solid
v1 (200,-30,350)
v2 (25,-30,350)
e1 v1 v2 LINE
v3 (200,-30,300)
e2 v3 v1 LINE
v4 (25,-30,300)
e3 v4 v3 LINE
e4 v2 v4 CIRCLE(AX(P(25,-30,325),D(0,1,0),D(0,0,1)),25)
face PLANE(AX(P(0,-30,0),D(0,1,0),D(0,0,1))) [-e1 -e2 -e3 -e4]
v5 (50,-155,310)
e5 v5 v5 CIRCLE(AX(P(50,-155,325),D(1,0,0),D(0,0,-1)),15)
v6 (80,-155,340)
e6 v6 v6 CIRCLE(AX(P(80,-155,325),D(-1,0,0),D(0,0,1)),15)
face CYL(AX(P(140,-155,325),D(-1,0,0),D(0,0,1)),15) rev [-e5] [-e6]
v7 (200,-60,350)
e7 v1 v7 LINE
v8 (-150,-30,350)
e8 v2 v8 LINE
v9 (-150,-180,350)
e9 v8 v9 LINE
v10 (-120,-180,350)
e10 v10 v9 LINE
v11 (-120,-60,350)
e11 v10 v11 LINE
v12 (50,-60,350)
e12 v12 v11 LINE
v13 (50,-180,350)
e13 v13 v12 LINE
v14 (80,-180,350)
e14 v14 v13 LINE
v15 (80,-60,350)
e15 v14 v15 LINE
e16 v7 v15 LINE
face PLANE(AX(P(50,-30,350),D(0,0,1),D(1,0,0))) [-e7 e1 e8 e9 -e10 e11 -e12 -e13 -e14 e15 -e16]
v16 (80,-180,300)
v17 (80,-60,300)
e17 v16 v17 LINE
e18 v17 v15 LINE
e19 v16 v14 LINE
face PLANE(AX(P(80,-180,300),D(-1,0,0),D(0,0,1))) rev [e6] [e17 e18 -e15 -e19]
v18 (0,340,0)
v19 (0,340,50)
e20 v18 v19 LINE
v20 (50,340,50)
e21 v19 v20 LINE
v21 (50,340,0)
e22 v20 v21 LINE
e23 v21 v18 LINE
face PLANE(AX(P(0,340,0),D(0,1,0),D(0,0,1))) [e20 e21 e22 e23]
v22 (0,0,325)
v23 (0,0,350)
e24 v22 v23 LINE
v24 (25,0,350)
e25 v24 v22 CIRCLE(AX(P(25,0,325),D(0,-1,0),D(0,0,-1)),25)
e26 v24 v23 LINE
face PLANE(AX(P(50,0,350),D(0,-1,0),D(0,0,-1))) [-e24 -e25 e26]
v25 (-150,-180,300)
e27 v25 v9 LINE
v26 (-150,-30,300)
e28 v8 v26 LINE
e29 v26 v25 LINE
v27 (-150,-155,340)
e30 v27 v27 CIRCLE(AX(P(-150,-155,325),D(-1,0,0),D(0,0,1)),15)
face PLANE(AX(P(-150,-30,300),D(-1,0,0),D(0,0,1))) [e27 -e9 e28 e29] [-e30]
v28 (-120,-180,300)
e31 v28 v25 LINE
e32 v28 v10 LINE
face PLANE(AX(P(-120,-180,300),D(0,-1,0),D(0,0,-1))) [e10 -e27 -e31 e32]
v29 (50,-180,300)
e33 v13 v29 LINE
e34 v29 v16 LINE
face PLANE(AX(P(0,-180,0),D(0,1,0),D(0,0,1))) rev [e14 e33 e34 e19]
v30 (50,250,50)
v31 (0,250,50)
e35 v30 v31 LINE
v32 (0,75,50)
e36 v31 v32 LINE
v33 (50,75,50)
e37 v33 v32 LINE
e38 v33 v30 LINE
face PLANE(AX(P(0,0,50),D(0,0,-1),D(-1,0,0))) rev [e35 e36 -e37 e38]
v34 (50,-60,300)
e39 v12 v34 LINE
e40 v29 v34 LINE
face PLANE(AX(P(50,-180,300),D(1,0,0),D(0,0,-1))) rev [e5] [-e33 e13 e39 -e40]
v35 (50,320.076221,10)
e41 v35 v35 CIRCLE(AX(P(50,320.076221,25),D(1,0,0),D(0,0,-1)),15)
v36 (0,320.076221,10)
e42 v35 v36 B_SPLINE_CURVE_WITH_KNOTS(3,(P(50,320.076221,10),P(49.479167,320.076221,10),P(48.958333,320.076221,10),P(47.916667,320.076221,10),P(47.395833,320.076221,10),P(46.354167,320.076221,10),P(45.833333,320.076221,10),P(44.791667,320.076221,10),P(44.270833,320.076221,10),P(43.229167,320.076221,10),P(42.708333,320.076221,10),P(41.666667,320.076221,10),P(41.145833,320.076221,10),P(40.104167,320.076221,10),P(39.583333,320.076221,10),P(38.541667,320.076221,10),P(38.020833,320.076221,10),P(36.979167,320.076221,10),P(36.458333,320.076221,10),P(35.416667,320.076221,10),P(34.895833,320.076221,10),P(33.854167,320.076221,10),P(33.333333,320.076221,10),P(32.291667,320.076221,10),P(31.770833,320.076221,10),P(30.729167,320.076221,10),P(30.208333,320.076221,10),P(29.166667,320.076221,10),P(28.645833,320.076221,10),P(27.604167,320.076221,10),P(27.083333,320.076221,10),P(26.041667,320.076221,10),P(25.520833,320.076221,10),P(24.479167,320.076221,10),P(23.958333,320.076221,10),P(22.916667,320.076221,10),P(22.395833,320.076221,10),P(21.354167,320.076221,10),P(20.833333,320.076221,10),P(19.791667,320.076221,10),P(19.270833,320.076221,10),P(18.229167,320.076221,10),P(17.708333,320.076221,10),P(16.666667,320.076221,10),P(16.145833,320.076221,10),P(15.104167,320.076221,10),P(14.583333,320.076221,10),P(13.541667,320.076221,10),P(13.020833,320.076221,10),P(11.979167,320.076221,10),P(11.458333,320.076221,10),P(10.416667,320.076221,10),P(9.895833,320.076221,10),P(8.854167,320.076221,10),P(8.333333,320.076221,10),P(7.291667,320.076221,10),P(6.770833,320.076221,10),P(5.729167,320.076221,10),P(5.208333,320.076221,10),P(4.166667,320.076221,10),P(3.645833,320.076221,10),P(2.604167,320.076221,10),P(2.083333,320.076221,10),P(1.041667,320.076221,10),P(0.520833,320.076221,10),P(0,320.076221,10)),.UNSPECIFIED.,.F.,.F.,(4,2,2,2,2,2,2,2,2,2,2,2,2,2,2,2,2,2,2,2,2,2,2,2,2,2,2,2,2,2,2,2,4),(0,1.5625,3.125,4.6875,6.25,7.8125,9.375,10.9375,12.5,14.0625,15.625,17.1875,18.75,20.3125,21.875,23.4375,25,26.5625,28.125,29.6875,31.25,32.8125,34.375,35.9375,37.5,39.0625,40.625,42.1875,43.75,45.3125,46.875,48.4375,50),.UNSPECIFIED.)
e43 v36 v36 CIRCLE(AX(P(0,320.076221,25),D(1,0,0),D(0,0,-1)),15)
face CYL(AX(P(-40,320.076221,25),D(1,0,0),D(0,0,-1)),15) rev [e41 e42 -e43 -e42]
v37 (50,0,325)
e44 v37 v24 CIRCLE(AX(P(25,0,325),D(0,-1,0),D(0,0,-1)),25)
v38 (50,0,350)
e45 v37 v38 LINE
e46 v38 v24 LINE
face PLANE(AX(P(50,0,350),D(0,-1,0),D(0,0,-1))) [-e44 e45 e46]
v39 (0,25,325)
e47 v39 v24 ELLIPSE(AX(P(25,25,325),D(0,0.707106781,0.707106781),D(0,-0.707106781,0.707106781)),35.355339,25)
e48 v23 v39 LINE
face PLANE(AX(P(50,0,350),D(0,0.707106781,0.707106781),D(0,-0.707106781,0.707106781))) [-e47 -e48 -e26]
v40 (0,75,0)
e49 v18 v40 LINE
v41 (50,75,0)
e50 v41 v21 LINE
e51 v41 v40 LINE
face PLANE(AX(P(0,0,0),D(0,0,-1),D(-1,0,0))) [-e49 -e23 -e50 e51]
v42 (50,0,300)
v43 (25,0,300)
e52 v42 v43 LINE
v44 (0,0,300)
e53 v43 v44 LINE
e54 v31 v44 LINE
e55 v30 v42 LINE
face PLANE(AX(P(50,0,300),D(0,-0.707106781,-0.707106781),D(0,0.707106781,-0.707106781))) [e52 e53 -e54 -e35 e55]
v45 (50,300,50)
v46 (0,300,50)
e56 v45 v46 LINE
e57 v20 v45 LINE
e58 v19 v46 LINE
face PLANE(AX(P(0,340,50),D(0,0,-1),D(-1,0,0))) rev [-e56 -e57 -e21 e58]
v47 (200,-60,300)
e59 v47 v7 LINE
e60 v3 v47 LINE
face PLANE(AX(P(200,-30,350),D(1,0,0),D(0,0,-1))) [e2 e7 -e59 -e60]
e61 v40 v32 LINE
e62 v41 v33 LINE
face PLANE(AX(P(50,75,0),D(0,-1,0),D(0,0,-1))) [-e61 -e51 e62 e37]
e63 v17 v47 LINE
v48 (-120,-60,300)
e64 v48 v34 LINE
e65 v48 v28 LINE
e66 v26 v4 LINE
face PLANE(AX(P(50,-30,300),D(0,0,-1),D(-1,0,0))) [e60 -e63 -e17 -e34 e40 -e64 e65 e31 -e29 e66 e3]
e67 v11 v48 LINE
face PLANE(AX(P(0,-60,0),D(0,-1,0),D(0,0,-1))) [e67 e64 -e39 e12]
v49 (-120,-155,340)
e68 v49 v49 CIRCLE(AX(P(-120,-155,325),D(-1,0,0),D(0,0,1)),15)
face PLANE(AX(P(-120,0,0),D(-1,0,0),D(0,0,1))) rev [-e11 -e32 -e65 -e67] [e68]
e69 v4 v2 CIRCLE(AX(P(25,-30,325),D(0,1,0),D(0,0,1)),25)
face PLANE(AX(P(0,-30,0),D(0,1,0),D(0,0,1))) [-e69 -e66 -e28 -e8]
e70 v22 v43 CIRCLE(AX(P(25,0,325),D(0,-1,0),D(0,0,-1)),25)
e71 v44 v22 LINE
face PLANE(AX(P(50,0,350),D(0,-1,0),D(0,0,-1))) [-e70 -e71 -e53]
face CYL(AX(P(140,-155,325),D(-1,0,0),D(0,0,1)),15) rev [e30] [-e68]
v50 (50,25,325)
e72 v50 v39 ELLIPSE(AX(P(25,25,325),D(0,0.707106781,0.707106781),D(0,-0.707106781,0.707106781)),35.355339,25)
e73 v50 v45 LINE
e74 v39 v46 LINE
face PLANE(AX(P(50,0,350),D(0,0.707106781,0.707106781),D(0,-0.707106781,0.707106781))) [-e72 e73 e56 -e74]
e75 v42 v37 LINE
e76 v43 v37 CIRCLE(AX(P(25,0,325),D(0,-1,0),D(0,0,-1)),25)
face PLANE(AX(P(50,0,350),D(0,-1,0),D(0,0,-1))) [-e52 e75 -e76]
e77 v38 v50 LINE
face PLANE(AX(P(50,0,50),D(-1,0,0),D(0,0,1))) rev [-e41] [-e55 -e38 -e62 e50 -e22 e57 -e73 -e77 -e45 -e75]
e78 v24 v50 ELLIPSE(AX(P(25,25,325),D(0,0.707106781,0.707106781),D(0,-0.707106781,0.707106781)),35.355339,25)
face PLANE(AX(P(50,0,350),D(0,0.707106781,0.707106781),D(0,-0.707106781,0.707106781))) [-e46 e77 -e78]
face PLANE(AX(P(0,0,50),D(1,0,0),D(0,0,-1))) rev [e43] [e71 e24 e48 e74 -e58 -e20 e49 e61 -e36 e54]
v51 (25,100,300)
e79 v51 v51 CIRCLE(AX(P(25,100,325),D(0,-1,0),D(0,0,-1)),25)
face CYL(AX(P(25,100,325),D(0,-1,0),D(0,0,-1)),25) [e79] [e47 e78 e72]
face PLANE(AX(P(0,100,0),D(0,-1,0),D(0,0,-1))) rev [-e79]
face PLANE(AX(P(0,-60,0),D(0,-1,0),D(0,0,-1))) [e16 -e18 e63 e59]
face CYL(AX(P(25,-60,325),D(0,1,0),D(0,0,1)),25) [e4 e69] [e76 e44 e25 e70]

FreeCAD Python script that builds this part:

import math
import FreeCAD as App
import Part
import Sketcher
Q = App.Units.Quantity

doc = App.newDocument("Part")
body = doc.addObject("PartDesign::Body", "Body")

# Sketch on XY plane
sketch1 = body.newObject("Sketcher::SketchObject", "Sketch")
sketch1.AttachmentSupport = (doc.getObject("XY_Plane"), [""])
sketch1.MapMode = "FlatFace"
sketch1.addGeometry([
    Part.LineSegment(App.Vector(0, 300, 0), App.Vector(0, 0, 0)),
    Part.LineSegment(App.Vector(0, 0, 0), App.Vector(50, 0, 0)),
    Part.LineSegment(App.Vector(50, 0, 0), App.Vector(50, 300, 0)),
    Part.LineSegment(App.Vector(50, 300, 0), App.Vector(0, 300, 0)),
], False)
sketch1.addConstraint([
    Sketcher.Constraint("Coincident", 0, 2, 1, 1),
    Sketcher.Constraint("Coincident", 1, 2, 2, 1),
    Sketcher.Constraint("Coincident", 2, 2, 3, 1),
    Sketcher.Constraint("Coincident", 3, 2, 0, 1),
    Sketcher.Constraint("Vertical", 0),
    Sketcher.Constraint("Horizontal", 1),
    Sketcher.Constraint("Vertical", 2),
    Sketcher.Constraint("Horizontal", 3),
    Sketcher.Constraint("Coincident", 0, 2, -1, 1),
    Sketcher.Constraint("DistanceX", 1, 1, 1, 2, 50.0),
    Sketcher.Constraint("DistanceY", 0, 2, 0, 1, 300.0),
])
pad1 = body.newObject("PartDesign::Pad", "Pad")
pad1.Profile = sketch1
pad1.Length = 50

# Sketch on YZ plane
sketch2 = body.newObject("Sketcher::SketchObject", "Sketch001")
sketch2.AttachmentSupport = (doc.getObject("YZ_Plane"), [""])
sketch2.MapMode = "FlatFace"
sketch2.addGeometry([
    Part.LineSegment(App.Vector(75, 0, 0), App.Vector(0, 0, 0)),
    Part.LineSegment(App.Vector(0, 0, 0), App.Vector(0, 50, 0)),
    Part.LineSegment(App.Vector(0, 50, 0), App.Vector(75, 50, 0)),
    Part.LineSegment(App.Vector(75, 50, 0), App.Vector(75, 0, 0)),
], False)
sketch2.addConstraint([
    Sketcher.Constraint("Coincident", 0, 2, 1, 1),
    Sketcher.Constraint("Coincident", 1, 2, 2, 1),
    Sketcher.Constraint("Coincident", 2, 2, 3, 1),
    Sketcher.Constraint("Coincident", 3, 2, 0, 1),
    Sketcher.Constraint("Horizontal", 0),
    Sketcher.Constraint("Vertical", 1),
    Sketcher.Constraint("Horizontal", 2),
    Sketcher.Constraint("Vertical", 3),
    Sketcher.Constraint("Coincident", 0, 2, -1, 1),
    Sketcher.Constraint("DistanceX", 0, 2, 0, 1, 75.0),
    Sketcher.Constraint("DistanceY", 1, 1, 1, 2, 50.0),
])
pocket1 = body.newObject("PartDesign::Pocket", "Pocket")
pocket1.Profile = sketch2
pocket1.Length = 50
pocket1.Reversed = True

# Sketch on YZ plane
sketch3 = body.newObject("Sketcher::SketchObject", "Sketch002")
sketch3.AttachmentSupport = (doc.getObject("YZ_Plane"), [""])
sketch3.MapMode = "FlatFace"
sketch3.addGeometry([
    Part.LineSegment(App.Vector(0, 350, 0), App.Vector(300, 50, 0)),  # 0
    Part.LineSegment(App.Vector(300, 50, 0), App.Vector(345, 0, 0)),  # 1
    Part.LineSegment(App.Vector(345, 0, 0), App.Vector(300, 0, 0)),  # 2
    Part.LineSegment(App.Vector(300, 0, 0), App.Vector(0, 300, 0)),  # 3
    Part.LineSegment(App.Vector(0, 300, 0), App.Vector(0, 350, 0)),  # 4
], False)
sketch3.addConstraint([
    Sketcher.Constraint("Coincident", 0, 2, 1, 1),
    Sketcher.Constraint("Coincident", 1, 2, 2, 1),
    Sketcher.Constraint("Coincident", 2, 2, 3, 1),
    Sketcher.Constraint("Coincident", 3, 2, 4, 1),
    Sketcher.Constraint("Coincident", 4, 2, 0, 1),
    Sketcher.Constraint("Horizontal", 2),
    Sketcher.Constraint("Vertical", 4),
    Sketcher.Constraint("PointOnObject", 1, 2, -1),
    Sketcher.Constraint("PointOnObject", 3, 2, -2),
    Sketcher.Constraint("Parallel", 0, 3),
    Sketcher.Constraint("Vertical", 0, 2, 2, 2),
    Sketcher.Constraint("DistanceY", 4, 1, 4, 2, 50.0),
    Sketcher.Constraint("Angle", 0, Q("-45 deg")),
    Sketcher.Constraint("DistanceX", -1, 1, 0, 2, 300.0),
    Sketcher.Constraint("Distance", 1, 67.239339),
])
pad2 = body.newObject("PartDesign::Pad", "Pad001")
pad2.Profile = sketch3
pad2.Length = 50

# Sketch on XZ plane
sketch4 = body.newObject("Sketcher::SketchObject", "Sketch003")
sketch4.AttachmentSupport = (doc.getObject("XZ_Plane"), [""])
sketch4.MapMode = "FlatFace"
sketch4.addGeometry([
    Part.ArcOfCircle(Part.Circle(App.Vector(25, 325, 0), App.Vector(0, 0, 1), 25), math.radians(0), math.radians(90)),
    Part.ArcOfCircle(Part.Circle(App.Vector(25, 325, 0), App.Vector(0, 0, 1), 25), math.radians(90), math.radians(270)),
    Part.ArcOfCircle(Part.Circle(App.Vector(25, 325, 0), App.Vector(0, 0, 1), 25), math.radians(-90), math.radians(0)),
], False)
sketch4.addConstraint([
    Sketcher.Constraint("Tangent", 0, 2, 1, 1),
    Sketcher.Constraint("Tangent", 1, 2, 2, 1),
    Sketcher.Constraint("Tangent", 2, 2, 0, 1),
    Sketcher.Constraint("Horizontal", 1, 3, 2, 2),
    Sketcher.Constraint("Vertical", 2, 3, 0, 2),
    Sketcher.Constraint("Vertical", 0, 2, 1, 2),
    Sketcher.Constraint("Radius", 0, 25.0),
    Sketcher.Constraint("DistanceX", -1, 1, 0, 3, 25.0),
    Sketcher.Constraint("DistanceY", -1, 1, 0, 3, 325.0),
])
pad3 = body.newObject("PartDesign::Pad", "Pad002")
pad3.Profile = sketch4
pad3.Length = 100
pad3.Reversed = True

# Sketch on XZ plane
sketch5 = body.newObject("Sketcher::SketchObject", "Sketch004")
sketch5.AttachmentSupport = (doc.getObject("XZ_Plane"), [""])
sketch5.MapMode = "FlatFace"
sketch5.AttachmentOffset = App.Placement(App.Vector(0, 0, 60), App.Rotation())
sketch5.addGeometry([
    Part.ArcOfCircle(Part.Circle(App.Vector(25, 325, 0), App.Vector(0, 0, 1), 25), math.radians(0), math.radians(90)),
    Part.ArcOfCircle(Part.Circle(App.Vector(25, 325, 0), App.Vector(0, 0, 1), 25), math.radians(90), math.radians(270)),
    Part.ArcOfCircle(Part.Circle(App.Vector(25, 325, 0), App.Vector(0, 0, 1), 25), math.radians(-90), math.radians(0)),
], False)
sketch5.addConstraint([
    Sketcher.Constraint("Tangent", 0, 2, 1, 1),
    Sketcher.Constraint("Tangent", 1, 2, 2, 1),
    Sketcher.Constraint("Tangent", 2, 2, 0, 1),
    Sketcher.Constraint("Horizontal", 1, 3, 2, 2),
    Sketcher.Constraint("Vertical", 2, 3, 0, 2),
    Sketcher.Constraint("Vertical", 0, 2, 1, 2),
    Sketcher.Constraint("Radius", 0, 25.0),
    Sketcher.Constraint("DistanceX", -1, 1, 0, 3, 25.0),
    Sketcher.Constraint("DistanceY", -1, 1, 0, 3, 325.0),
])
pad4 = body.newObject("PartDesign::Pad", "Pad003")
pad4.Profile = sketch5
pad4.Length = 60
pad4.Reversed = True

# Sketch on XZ plane
sketch6 = body.newObject("Sketcher::SketchObject", "Sketch005")
sketch6.AttachmentSupport = (doc.getObject("XZ_Plane"), [""])
sketch6.MapMode = "FlatFace"
sketch6.AttachmentOffset = App.Placement(App.Vector(0, 0, 60), App.Rotation())
sketch6.addGeometry([
    Part.LineSegment(App.Vector(-150, 300, 0), App.Vector(200, 300, 0)),
    Part.LineSegment(App.Vector(200, 300, 0), App.Vector(200, 350, 0)),
    Part.LineSegment(App.Vector(200, 350, 0), App.Vector(-150, 350, 0)),
    Part.LineSegment(App.Vector(-150, 350, 0), App.Vector(-150, 300, 0)),
], False)
sketch6.addConstraint([
    Sketcher.Constraint("Coincident", 0, 2, 1, 1),
    Sketcher.Constraint("Coincident", 1, 2, 2, 1),
    Sketcher.Constraint("Coincident", 2, 2, 3, 1),
    Sketcher.Constraint("Coincident", 3, 2, 0, 1),
    Sketcher.Constraint("Horizontal", 0),
    Sketcher.Constraint("Vertical", 1),
    Sketcher.Constraint("Horizontal", 2),
    Sketcher.Constraint("Vertical", 3),
    Sketcher.Constraint("DistanceX", 0, 1, 0, 2, 350.0),
    Sketcher.Constraint("DistanceY", 1, 1, 1, 2, 50.0),
    Sketcher.Constraint("DistanceX", -1, 1, 0, 2, 200.0),
    Sketcher.Constraint("DistanceY", -1, 1, 0, 2, 300.0),
])
pad5 = body.newObject("PartDesign::Pad", "Pad004")
pad5.Profile = sketch6
pad5.Length = 30
pad5.Reversed = True

# Sketch on YZ plane
sketch7 = body.newObject("Sketcher::SketchObject", "Sketch006")
sketch7.AttachmentSupport = (doc.getObject("YZ_Plane"), [""])
sketch7.MapMode = "FlatFace"
sketch7.AttachmentOffset = App.Placement(App.Vector(0, 0, -150), App.Rotation())
sketch7.addGeometry([
    Part.LineSegment(App.Vector(-30, 300, 0), App.Vector(-180, 300, 0)),
    Part.LineSegment(App.Vector(-180, 300, 0), App.Vector(-180, 350, 0)),
    Part.LineSegment(App.Vector(-180, 350, 0), App.Vector(-30, 350, 0)),
    Part.LineSegment(App.Vector(-30, 350, 0), App.Vector(-30, 300, 0)),
], False)
sketch7.addConstraint([
    Sketcher.Constraint("Coincident", 0, 2, 1, 1),
    Sketcher.Constraint("Coincident", 1, 2, 2, 1),
    Sketcher.Constraint("Coincident", 2, 2, 3, 1),
    Sketcher.Constraint("Coincident", 3, 2, 0, 1),
    Sketcher.Constraint("Horizontal", 0),
    Sketcher.Constraint("Vertical", 1),
    Sketcher.Constraint("Horizontal", 2),
    Sketcher.Constraint("Vertical", 3),
    Sketcher.Constraint("DistanceX", 0, 2, 0, 1, 150.0),
    Sketcher.Constraint("DistanceY", 1, 1, 1, 2, 50.0),
    Sketcher.Constraint("DistanceX", 0, 2, -1, 1, 180.0),
    Sketcher.Constraint("DistanceY", -1, 1, 0, 2, 300.0),
])
pad6 = body.newObject("PartDesign::Pad", "Pad005")
pad6.Profile = sketch7
pad6.Length = 30

# Sketch on XZ plane
sketch8 = body.newObject("Sketcher::SketchObject", "Sketch007")
sketch8.AttachmentSupport = (doc.getObject("XZ_Plane"), [""])
sketch8.MapMode = "FlatFace"
sketch8.AttachmentOffset = App.Placement(App.Vector(0, 0, 60), App.Rotation())
sketch8.addGeometry([
    Part.LineSegment(App.Vector(50, 350, 0), App.Vector(50, 300, 0)),
    Part.LineSegment(App.Vector(50, 300, 0), App.Vector(80, 300, 0)),
    Part.LineSegment(App.Vector(80, 300, 0), App.Vector(80, 350, 0)),
    Part.LineSegment(App.Vector(80, 350, 0), App.Vector(50, 350, 0)),
], False)
sketch8.addConstraint([
    Sketcher.Constraint("Coincident", 0, 2, 1, 1),
    Sketcher.Constraint("Coincident", 1, 2, 2, 1),
    Sketcher.Constraint("Coincident", 2, 2, 3, 1),
    Sketcher.Constraint("Coincident", 3, 2, 0, 1),
    Sketcher.Constraint("Vertical", 0),
    Sketcher.Constraint("Horizontal", 1),
    Sketcher.Constraint("Vertical", 2),
    Sketcher.Constraint("Horizontal", 3),
    Sketcher.Constraint("DistanceX", 1, 1, 1, 2, 30.0),
    Sketcher.Constraint("DistanceY", 0, 2, 0, 1, 50.0),
    Sketcher.Constraint("DistanceX", -1, 1, 0, 2, 50.0),
    Sketcher.Constraint("DistanceY", -1, 1, 0, 2, 300.0),
])
pad7 = body.newObject("PartDesign::Pad", "Pad006")
pad7.Profile = sketch8
pad7.Length = 120

# Sketch on YZ plane
sketch9 = body.newObject("Sketcher::SketchObject", "Sketch008")
sketch9.AttachmentSupport = (doc.getObject("YZ_Plane"), [""])
sketch9.MapMode = "FlatFace"
sketch9.AttachmentOffset = App.Placement(App.Vector(0, 0, -150), App.Rotation())
sketch9.addGeometry([
    Part.ArcOfCircle(Part.Circle(App.Vector(-155, 325, 0), App.Vector(0, 0, 1), 15), math.radians(180), math.radians(360)),  # 0
    Part.LineSegment(App.Vector(-170, 325, 0), App.Vector(-140, 325, 0)),  # 1
    Part.LineSegment(App.Vector(-140, 325, 0), App.Vector(-170, 325, 0)),  # 2
    Part.ArcOfCircle(Part.Circle(App.Vector(-155, 325, 0), App.Vector(0, 0, 1), 15), math.radians(90), math.radians(180)),  # 3
    Part.ArcOfCircle(Part.Circle(App.Vector(-155, 325, 0), App.Vector(0, 0, 1), 15), math.radians(0), math.radians(90)),  # 4
], False)
sketch9.addConstraint([
    Sketcher.Constraint("Coincident", 0, 1, 1, 1),
    Sketcher.Constraint("Coincident", 1, 2, 0, 2),
    Sketcher.Constraint("Coincident", 2, 2, 3, 2),
    Sketcher.Constraint("Tangent", 3, 1, 4, 2),
    Sketcher.Constraint("Coincident", 4, 1, 2, 1),
    Sketcher.Constraint("Horizontal", 1),
    Sketcher.Constraint("Horizontal", 2),
    Sketcher.Constraint("Coincident", 3, 3, 0, 3),
    Sketcher.Constraint("Coincident", 2, 2, 0, 1),
    Sketcher.Constraint("Equal", 3, 4),
    Sketcher.Constraint("Horizontal", 4, 3, 0, 1),
    Sketcher.Constraint("Vertical", 4, 3, 3, 1),
    Sketcher.Constraint("Radius", 0, 15.0),
    Sketcher.Constraint("DistanceX", 0, 3, -1, 1, 155.0),
    Sketcher.Constraint("DistanceY", -1, 1, 0, 3, 325.0),
])
pocket2 = body.newObject("PartDesign::Pocket", "Pocket001")
pocket2.Profile = sketch9
pocket2.Length = 290
pocket2.Reversed = True

# Sketch on XY plane
sketch10 = body.newObject("Sketcher::SketchObject", "Sketch009")
sketch10.AttachmentSupport = (doc.getObject("XY_Plane"), [""])
sketch10.MapMode = "FlatFace"
sketch10.addGeometry([
    Part.LineSegment(App.Vector(0, 345, 0), App.Vector(0, 300, 0)),
    Part.LineSegment(App.Vector(0, 300, 0), App.Vector(50, 300, 0)),
    Part.LineSegment(App.Vector(50, 300, 0), App.Vector(50, 345, 0)),
    Part.LineSegment(App.Vector(50, 345, 0), App.Vector(0, 345, 0)),
], False)
sketch10.addConstraint([
    Sketcher.Constraint("Coincident", 0, 2, 1, 1),
    Sketcher.Constraint("Coincident", 1, 2, 2, 1),
    Sketcher.Constraint("Coincident", 2, 2, 3, 1),
    Sketcher.Constraint("Coincident", 3, 2, 0, 1),
    Sketcher.Constraint("Vertical", 0),
    Sketcher.Constraint("Horizontal", 1),
    Sketcher.Constraint("Vertical", 2),
    Sketcher.Constraint("Horizontal", 3),
    Sketcher.Constraint("PointOnObject", 0, 2, -2),
    Sketcher.Constraint("DistanceX", 1, 1, 1, 2, 50.0),
    Sketcher.Constraint("DistanceY", -1, 1, 0, 2, 300.0),
    Sketcher.Constraint("DistanceY", 0, 2, 0, 1, 44.956965),
])
pocket3 = body.newObject("PartDesign::Pocket", "Pocket002")
pocket3.Profile = sketch10
pocket3.Length = 50
pocket3.Reversed = True

# Sketch on XZ plane
sketch11 = body.newObject("Sketcher::SketchObject", "Sketch010")
sketch11.AttachmentSupport = (doc.getObject("XZ_Plane"), [""])
sketch11.MapMode = "FlatFace"
sketch11.AttachmentOffset = App.Placement(App.Vector(0, 0, -300), App.Rotation())
sketch11.addGeometry([
    Part.LineSegment(App.Vector(0, 0, 0), App.Vector(0, 50, 0)),
    Part.LineSegment(App.Vector(0, 50, 0), App.Vector(50, 50, 0)),
    Part.LineSegment(App.Vector(50, 50, 0), App.Vector(50, 0, 0)),
    Part.LineSegment(App.Vector(50, 0, 0), App.Vector(0, 0, 0)),
], False)
sketch11.addConstraint([
    Sketcher.Constraint("Coincident", 0, 2, 1, 1),
    Sketcher.Constraint("Coincident", 1, 2, 2, 1),
    Sketcher.Constraint("Coincident", 2, 2, 3, 1),
    Sketcher.Constraint("Coincident", 3, 2, 0, 1),
    Sketcher.Constraint("Vertical", 0),
    Sketcher.Constraint("Horizontal", 1),
    Sketcher.Constraint("Vertical", 2),
    Sketcher.Constraint("Horizontal", 3),
    Sketcher.Constraint("Coincident", 3, 2, -1, 1),
    Sketcher.Constraint("Equal", 3, 0),
    Sketcher.Constraint("DistanceX", 1, 1, 1, 2, 50.0),
])
pad8 = body.newObject("PartDesign::Pad", "Pad007")
pad8.Profile = sketch11
pad8.Length = 40
pad8.Reversed = True

# Sketch on YZ plane
sketch12 = body.newObject("Sketcher::SketchObject", "Sketch011")
sketch12.AttachmentSupport = (doc.getObject("YZ_Plane"), [""])
sketch12.MapMode = "FlatFace"
sketch12.AttachmentOffset = App.Placement(App.Vector(0, 0, 50), App.Rotation())
sketch12.addGeometry(Part.Circle(App.Vector(320, 25, 0), App.Vector(0, 0, 1), 15), False)
sketch12.addConstraint([
    Sketcher.Constraint("Diameter", 0, 30.0),
    Sketcher.Constraint("DistanceY", -1, 1, 0, 3, 25.0),
    Sketcher.Constraint("DistanceX", -1, 1, 0, 3, 320.076221),
])
pocket4 = body.newObject("PartDesign::Pocket", "Pocket003")
pocket4.Profile = sketch12
pocket4.Length = 90

doc.recompute()
